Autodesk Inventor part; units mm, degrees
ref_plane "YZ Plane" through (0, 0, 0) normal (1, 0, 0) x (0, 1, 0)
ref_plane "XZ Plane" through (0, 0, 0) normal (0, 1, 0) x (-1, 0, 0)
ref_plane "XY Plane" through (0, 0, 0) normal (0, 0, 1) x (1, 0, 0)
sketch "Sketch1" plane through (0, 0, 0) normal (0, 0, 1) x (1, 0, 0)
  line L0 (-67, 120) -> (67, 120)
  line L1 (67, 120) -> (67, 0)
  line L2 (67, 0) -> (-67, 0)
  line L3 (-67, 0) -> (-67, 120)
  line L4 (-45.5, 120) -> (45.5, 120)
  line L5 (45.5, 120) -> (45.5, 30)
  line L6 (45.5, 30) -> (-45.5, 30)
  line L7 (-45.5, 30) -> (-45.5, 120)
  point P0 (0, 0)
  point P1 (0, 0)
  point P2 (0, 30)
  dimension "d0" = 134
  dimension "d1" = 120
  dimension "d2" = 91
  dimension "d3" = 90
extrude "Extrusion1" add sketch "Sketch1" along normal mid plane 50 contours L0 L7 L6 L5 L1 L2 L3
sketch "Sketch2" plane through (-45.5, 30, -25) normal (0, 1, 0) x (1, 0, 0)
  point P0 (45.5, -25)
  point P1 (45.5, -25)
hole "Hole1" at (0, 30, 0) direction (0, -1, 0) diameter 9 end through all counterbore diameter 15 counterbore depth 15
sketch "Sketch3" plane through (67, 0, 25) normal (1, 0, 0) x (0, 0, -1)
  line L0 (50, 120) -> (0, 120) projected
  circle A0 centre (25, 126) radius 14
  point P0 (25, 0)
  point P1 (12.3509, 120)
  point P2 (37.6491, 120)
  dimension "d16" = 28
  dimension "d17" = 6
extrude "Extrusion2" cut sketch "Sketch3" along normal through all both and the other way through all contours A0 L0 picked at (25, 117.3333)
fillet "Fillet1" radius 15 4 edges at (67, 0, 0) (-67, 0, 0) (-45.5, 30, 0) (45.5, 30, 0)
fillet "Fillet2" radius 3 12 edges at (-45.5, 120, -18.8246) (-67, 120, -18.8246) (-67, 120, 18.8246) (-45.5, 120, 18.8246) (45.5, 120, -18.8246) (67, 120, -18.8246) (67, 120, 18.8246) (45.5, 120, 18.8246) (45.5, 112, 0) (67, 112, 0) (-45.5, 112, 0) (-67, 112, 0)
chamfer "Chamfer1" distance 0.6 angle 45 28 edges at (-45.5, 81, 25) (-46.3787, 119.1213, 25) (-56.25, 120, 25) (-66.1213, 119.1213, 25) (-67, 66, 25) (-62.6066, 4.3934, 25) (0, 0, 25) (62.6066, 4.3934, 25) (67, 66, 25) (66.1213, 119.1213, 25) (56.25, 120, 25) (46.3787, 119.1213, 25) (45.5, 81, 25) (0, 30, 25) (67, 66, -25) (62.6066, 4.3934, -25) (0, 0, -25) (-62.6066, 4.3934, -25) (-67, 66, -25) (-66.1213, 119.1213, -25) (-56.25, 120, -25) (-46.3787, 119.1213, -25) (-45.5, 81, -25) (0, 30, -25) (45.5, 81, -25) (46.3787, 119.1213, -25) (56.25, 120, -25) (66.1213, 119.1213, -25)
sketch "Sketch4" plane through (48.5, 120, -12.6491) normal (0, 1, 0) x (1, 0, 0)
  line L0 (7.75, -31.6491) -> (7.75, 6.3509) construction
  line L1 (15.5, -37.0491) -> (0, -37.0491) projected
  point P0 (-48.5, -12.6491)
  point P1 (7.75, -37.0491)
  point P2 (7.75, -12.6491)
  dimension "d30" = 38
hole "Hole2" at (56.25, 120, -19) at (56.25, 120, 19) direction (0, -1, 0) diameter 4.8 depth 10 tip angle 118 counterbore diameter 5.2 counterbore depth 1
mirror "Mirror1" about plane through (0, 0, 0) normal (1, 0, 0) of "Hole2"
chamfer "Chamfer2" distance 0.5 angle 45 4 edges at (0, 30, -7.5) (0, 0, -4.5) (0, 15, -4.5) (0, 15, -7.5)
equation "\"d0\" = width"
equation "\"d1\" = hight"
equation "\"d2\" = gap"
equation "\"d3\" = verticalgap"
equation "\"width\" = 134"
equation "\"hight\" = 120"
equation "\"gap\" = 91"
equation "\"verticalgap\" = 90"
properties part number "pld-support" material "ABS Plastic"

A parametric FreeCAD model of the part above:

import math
import FreeCAD as App
import Part
import Sketcher

V = App.Vector
Q = App.Units.Quantity


def edges_at(feature, points):
    """Names of the edges that pass closest to the given points."""
    edges = feature.Shape.Edges
    near = lambda p: min(range(len(edges)), key=lambda i: edges[i].distToShape(Part.Vertex(*p))[0])
    return sorted({f"Edge{near(p) + 1}" for p in points})


def add_polygon(sketch, points):
    """Adds a closed chain of lines whose ends are joined by coincident constraints."""
    first, n = sketch.GeometryCount, len(points)
    for a, b in zip(points, points[1:] + points[:1]):
        sketch.addGeometry(Part.LineSegment(App.Vector(*a, 0), App.Vector(*b, 0)), False)
    for i in range(n):
        sketch.addConstraint(Sketcher.Constraint("Coincident", first + i, 2, first + (i + 1) % n, 1))

doc = App.newDocument("Part")
body = doc.addObject("PartDesign::Body", "Body")

# Sketch on XY plane
sketch1 = body.newObject("Sketcher::SketchObject", "Sketch")
sketch1.AttachmentSupport = (doc.getObject("XY_Plane"), [""])
sketch1.MapMode = "FlatFace"
add_polygon(sketch1, [(-45.5, 120), (-67, 120), (-67, 0), (67, 0), (67, 120), (45.5, 120), (45.5, 30), (-45.5, 30)])  # lines 0-7
sketch1.addConstraint([
    Sketcher.Constraint("Horizontal", 0),
    Sketcher.Constraint("Vertical", 1),
    Sketcher.Constraint("Horizontal", 2),
    Sketcher.Constraint("Vertical", 3),
    Sketcher.Constraint("Horizontal", 4),
    Sketcher.Constraint("Vertical", 5),
    Sketcher.Constraint("Horizontal", 6),
    Sketcher.Constraint("Vertical", 7),
    Sketcher.Constraint("Symmetric", 1, 2, 2, 2, -1, 1),
    Sketcher.Constraint("Symmetric", 4, 2, 7, 2, -2),
    Sketcher.Constraint("DistanceX", 2, 1, 2, 2, Q("134 mm")),
    Sketcher.Constraint("DistanceX", 6, 2, 6, 1, Q("91 mm")),
    Sketcher.Constraint("DistanceY", 1, 2, 1, 1, Q("120 mm")),
    Sketcher.Constraint("DistanceY", 5, 2, 5, 1, Q("90 mm")),
])
pad1 = body.newObject("PartDesign::Pad", "Pad")
pad1.Profile = sketch1
pad1.Length = 50
pad1.Midplane = True

# Sketch on XZ plane
sketch2 = body.newObject("Sketcher::SketchObject", "Sketch001")
sketch2.AttachmentSupport = (doc.getObject("XZ_Plane"), [""])
sketch2.MapMode = "FlatFace"
sketch2.AttachmentOffset = App.Placement(V(0, 0, -30), App.Rotation())
sketch2.addGeometry(Part.Circle(V(0, 0, 0), V(0, 0, 1), 4.5), False)
sketch2.addConstraint([
    Sketcher.Constraint("Coincident", 0, 3, -1, 1),
    Sketcher.Constraint("Diameter", 0, Q("9 mm")),
])
doc.recompute()
hole = body.newObject("PartDesign::Hole", "Hole")
hole.Profile = sketch2
hole.ThreadType = "None"
hole.Diameter = 9
hole.DepthType = "ThroughAll"
hole.HoleCutType = "Counterbore"
hole.HoleCutDiameter = 15
hole.HoleCutDepth = 15
hole.Reversed = True

# Sketch on YZ plane
sketch3 = body.newObject("Sketcher::SketchObject", "Sketch002")
sketch3.AttachmentSupport = (doc.getObject("YZ_Plane"), [""])
sketch3.MapMode = "FlatFace"
sketch3.AttachmentOffset = App.Placement(V(0, 0, 67), App.Rotation())
sketch3.addGeometry([
    Part.ArcOfCircle(Part.Circle(V(126, 0, 0), V(0, 0, 1), 14), math.radians(115.376934), math.radians(244.623066)),
    Part.LineSegment(V(120, -12.649111, 0), V(120, 12.649111, 0)),
], False)
sketch3.addConstraint([
    Sketcher.Constraint("Coincident", 0, 1, 1, 2),
    Sketcher.Constraint("Coincident", 1, 1, 0, 2),
    Sketcher.Constraint("Vertical", 1),
    Sketcher.Constraint("PointOnObject", 0, 3, -1),
    Sketcher.Constraint("Radius", 0, Q("14 mm")),
    Sketcher.Constraint("DistanceX", 0, 1, 0, 3, Q("6 mm")),
    Sketcher.Constraint("DistanceX", -1, 1, 0, 3, Q("126 mm")),
])
pocket1 = body.newObject("PartDesign::Pocket", "Pocket")
pocket1.Profile = sketch3
pocket1.Type = "ThroughAll"
pocket1.Midplane = True
doc.recompute()

fillet = body.newObject("PartDesign::Fillet", "Fillet")
fillet.Base = (pocket1, edges_at(pocket1, [
    (67, 0, 0),
    (-67, 0, 0),
    (-45.5, 30, 0),
    (45.5, 30, 0),
]))
fillet.Radius = 15
doc.recompute()

fillet2 = body.newObject("PartDesign::Fillet", "Fillet001")
fillet2.Base = (fillet, edges_at(fillet, [
    (-45.5, 120, -18.825),
    (-67, 120, -18.825),
    (-67, 120, 18.825),
    (-45.5, 120, 18.825),
    (45.5, 120, -18.825),
    (67, 120, -18.825),
    (67, 120, 18.825),
    (45.5, 120, 18.825),
    (45.5, 112, 0),
    (67, 112, 0),
    (-45.5, 112, 0),
    (-67, 112, 0),
]))
fillet2.Radius = 3
doc.recompute()

chamfer = body.newObject("PartDesign::Chamfer", "Chamfer")
chamfer.Base = (fillet2, edges_at(fillet2, [
    (-45.5, 81, 25),
    (-46.379, 119.121, 25),
    (-56.25, 120, 25),
    (-66.121, 119.121, 25),
    (-67, 66, 25),
    (-62.607, 4.393, 25),
    (0, 0, 25),
    (62.607, 4.393, 25),
    (67, 66, 25),
    (66.121, 119.121, 25),
    (56.25, 120, 25),
    (46.379, 119.121, 25),
    (45.5, 81, 25),
    (0, 30, 25),
    (67, 66, -25),
    (62.607, 4.393, -25),
    (0, 0, -25),
    (-62.607, 4.393, -25),
    (-67, 66, -25),
    (-66.121, 119.121, -25),
    (-56.25, 120, -25),
    (-46.379, 119.121, -25),
    (-45.5, 81, -25),
    (0, 30, -25),
    (45.5, 81, -25),
    (46.379, 119.121, -25),
    (56.25, 120, -25),
    (66.121, 119.121, -25),
]))
chamfer.Size = 0.6

# Sketch on XZ plane
sketch4 = body.newObject("Sketcher::SketchObject", "Sketch003")
sketch4.AttachmentSupport = (doc.getObject("XZ_Plane"), [""])
sketch4.MapMode = "FlatFace"
sketch4.AttachmentOffset = App.Placement(V(0, 0, -120), App.Rotation())
sketch4.addGeometry([
    Part.Circle(V(56.25, -19, 0), V(0, 0, 1), 2.4),
    Part.Circle(V(56.25, 19, 0), V(0, 0, 1), 2.4),
], False)
sketch4.addConstraint([
    Sketcher.Constraint("Equal", 0, 1),
    Sketcher.Constraint("Symmetric", 0, 3, 1, 3, -1),
    Sketcher.Constraint("Diameter", 0, Q("4.8 mm")),
    Sketcher.Constraint("DistanceY", 0, 3, -1, 1, Q("19 mm")),
    Sketcher.Constraint("DistanceX", -1, 1, 0, 3, Q("56.25 mm")),
])
doc.recompute()
hole2 = body.newObject("PartDesign::Hole", "Hole001")
hole2.Profile = sketch4
hole2.ThreadType = "None"
hole2.Diameter = 4.8
hole2.DepthType = "Dimension"
hole2.Depth = 10
hole2.DrillPoint = "Angled"
hole2.DrillPointAngle = 118
hole2.HoleCutType = "Counterbore"
hole2.HoleCutDiameter = 5.2
hole2.HoleCutDepth = 1
hole2.Reversed = True
doc.recompute()

mirrored = body.newObject("PartDesign::Mirrored", "Mirrored")
mirrored.Originals = [hole2]
mirrored.MirrorPlane = (doc.getObject("YZ_Plane"), [""])
body.Tip = mirrored
doc.recompute()

chamfer2 = body.newObject("PartDesign::Chamfer", "Chamfer001")
chamfer2.Base = (mirrored, edges_at(mirrored, [
    (0, 30, -7.5),
    (0, 0, -4.5),
    (0, 15, -4.5),
    (0, 15, -7.5),
]))
chamfer2.Size = 0.5

doc.recompute()
